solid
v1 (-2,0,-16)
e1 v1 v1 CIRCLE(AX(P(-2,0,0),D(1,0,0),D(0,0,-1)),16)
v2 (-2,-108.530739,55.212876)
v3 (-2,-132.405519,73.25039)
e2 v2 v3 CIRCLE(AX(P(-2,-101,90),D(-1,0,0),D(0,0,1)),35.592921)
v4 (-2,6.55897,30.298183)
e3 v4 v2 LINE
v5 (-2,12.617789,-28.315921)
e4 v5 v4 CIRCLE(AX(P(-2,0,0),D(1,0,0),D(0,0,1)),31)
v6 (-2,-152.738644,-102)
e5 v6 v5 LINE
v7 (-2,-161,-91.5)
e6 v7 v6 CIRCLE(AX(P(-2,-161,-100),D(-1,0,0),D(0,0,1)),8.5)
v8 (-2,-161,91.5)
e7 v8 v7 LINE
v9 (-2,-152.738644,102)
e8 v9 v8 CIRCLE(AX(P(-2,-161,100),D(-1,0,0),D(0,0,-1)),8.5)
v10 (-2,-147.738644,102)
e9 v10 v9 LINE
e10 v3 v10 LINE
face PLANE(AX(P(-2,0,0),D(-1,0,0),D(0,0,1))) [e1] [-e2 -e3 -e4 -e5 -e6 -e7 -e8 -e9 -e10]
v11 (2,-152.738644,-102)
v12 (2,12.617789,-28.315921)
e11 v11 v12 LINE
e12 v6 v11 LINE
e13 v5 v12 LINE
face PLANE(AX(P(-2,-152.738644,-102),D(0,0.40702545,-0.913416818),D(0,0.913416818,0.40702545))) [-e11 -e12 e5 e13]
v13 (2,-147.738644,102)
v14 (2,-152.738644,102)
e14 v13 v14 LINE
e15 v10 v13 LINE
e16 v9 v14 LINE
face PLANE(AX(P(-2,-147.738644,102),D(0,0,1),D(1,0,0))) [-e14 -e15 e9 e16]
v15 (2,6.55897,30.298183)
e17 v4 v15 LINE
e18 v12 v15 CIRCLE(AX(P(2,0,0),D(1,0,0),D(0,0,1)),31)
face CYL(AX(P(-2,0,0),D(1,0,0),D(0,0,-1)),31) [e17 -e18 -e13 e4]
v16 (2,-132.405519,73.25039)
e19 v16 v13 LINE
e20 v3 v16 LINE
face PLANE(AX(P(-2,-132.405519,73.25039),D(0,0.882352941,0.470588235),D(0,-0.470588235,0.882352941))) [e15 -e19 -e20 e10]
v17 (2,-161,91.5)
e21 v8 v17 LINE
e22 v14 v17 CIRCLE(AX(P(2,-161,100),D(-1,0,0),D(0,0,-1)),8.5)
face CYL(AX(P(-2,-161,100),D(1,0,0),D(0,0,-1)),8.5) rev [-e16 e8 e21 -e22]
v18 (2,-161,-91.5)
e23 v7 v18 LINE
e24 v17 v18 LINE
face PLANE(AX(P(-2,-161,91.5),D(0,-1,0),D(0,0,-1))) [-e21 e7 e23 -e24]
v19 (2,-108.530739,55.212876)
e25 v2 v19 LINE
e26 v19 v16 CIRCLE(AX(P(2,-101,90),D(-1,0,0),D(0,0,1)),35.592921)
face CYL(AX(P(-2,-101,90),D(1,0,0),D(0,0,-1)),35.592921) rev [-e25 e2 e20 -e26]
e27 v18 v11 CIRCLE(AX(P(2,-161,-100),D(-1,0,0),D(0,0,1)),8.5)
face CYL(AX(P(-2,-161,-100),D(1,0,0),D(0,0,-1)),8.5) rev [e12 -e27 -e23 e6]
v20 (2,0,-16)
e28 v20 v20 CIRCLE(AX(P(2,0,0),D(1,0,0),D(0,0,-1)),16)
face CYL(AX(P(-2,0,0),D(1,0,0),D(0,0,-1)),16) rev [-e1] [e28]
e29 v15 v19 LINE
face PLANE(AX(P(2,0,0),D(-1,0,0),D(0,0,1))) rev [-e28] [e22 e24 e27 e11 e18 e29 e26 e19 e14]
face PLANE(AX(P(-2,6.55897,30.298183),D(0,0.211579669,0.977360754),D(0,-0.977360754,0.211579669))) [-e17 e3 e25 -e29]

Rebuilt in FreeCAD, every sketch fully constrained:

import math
import FreeCAD as App
import Part
import Sketcher
from FreeCAD import Vector

doc = App.newDocument("Part")
body = doc.addObject("PartDesign::Body", "Body")

sketch1 = body.newObject("Sketcher::SketchObject", "Sketch")
sketch1.AttachmentSupport = (doc.getObject("YZ_Plane"), [""])
sketch1.MapMode = "FlatFace"
sketch1.addGeometry(Part.LineSegment(Vector(-161, 91.5, 0), Vector(-161, -91.5, 0)), False)
sketch1.addGeometry(Part.ArcOfCircle(Part.Circle(Vector(-161, -100, 0), Vector(0, 0, 1), 8.5), math.radians(-13.608961), math.radians(90)), False)
sketch1.addGeometry(Part.LineSegment(Vector(-152.738644, -102, 0), Vector(12.617789, -28.315921, 0)), False)
sketch1.addGeometry(Part.ArcOfCircle(Part.Circle(Vector(0, 0, 0), Vector(0, 0, 1), 31), math.radians(-65.981885), math.radians(77.785059)), False)
sketch1.addGeometry(Part.LineSegment(Vector(6.55897, 30.298183, 0), Vector(-108.530739, 55.212876, 0)), False)
sketch1.addGeometry(Part.ArcOfCircle(Part.Circle(Vector(-101, 90, 0), Vector(0, 0, 1), 35.592921), math.radians(-151.927513), math.radians(-102.214941)), False)
sketch1.addGeometry(Part.LineSegment(Vector(-132.405519, 73.25039, 0), Vector(-147.738644, 102, 0)), False)
sketch1.addGeometry(Part.LineSegment(Vector(-147.738644, 102, 0), Vector(-152.738644, 102, 0)), False)
sketch1.addGeometry(Part.ArcOfCircle(Part.Circle(Vector(-161, 100, 0), Vector(0, 0, 1), 8.5), math.radians(-90), math.radians(13.608961)), False)
sketch1.addGeometry(Part.Circle(Vector(0, 0, 0), Vector(0, 0, 1), 16), False)
sketch1.addConstraint(Sketcher.Constraint("Coincident", 0, 2, 1, 2))
sketch1.addConstraint(Sketcher.Constraint("Coincident", 1, 1, 2, 1))
sketch1.addConstraint(Sketcher.Constraint("Tangent", 2, 2, 3, 1))
sketch1.addConstraint(Sketcher.Constraint("Tangent", 3, 2, 4, 1))
sketch1.addConstraint(Sketcher.Constraint("Tangent", 4, 2, 5, 2))
sketch1.addConstraint(Sketcher.Constraint("Tangent", 5, 1, 6, 1))
sketch1.addConstraint(Sketcher.Constraint("Coincident", 6, 2, 7, 1))
sketch1.addConstraint(Sketcher.Constraint("Coincident", 7, 2, 8, 2))
sketch1.addConstraint(Sketcher.Constraint("Coincident", 8, 1, 0, 1))
sketch1.addConstraint(Sketcher.Constraint("Vertical", 0))
sketch1.addConstraint(Sketcher.Constraint("Horizontal", 7))
sketch1.addConstraint(Sketcher.Constraint("Coincident", 3, 3, -1, 1))
sketch1.addConstraint(Sketcher.Constraint("Coincident", 9, 3, -1, 1))
sketch1.addConstraint(Sketcher.Constraint("Equal", 1, 8))
sketch1.addConstraint(Sketcher.Constraint("Symmetric", 1, 3, 8, 3, -1))
sketch1.addConstraint(Sketcher.Constraint("Vertical", 8, 3, 0, 2))
sketch1.addConstraint(Sketcher.Constraint("Vertical", 1, 1, 7, 2))
sketch1.addConstraint(Sketcher.Constraint("Diameter", 9, 32.0))
sketch1.addConstraint(Sketcher.Constraint("Radius", 3, 31.0))
sketch1.addConstraint(Sketcher.Constraint("Radius", 1, 8.5))
sketch1.addConstraint(Sketcher.Constraint("DistanceX", 7, 2, 7, 1, 5.0))
sketch1.addConstraint(Sketcher.Constraint("DistanceY", 0, 2, 0, 1, 183.0))
sketch1.addConstraint(Sketcher.Constraint("DistanceX", 1, 3, -1, 1, 161.0))
sketch1.addConstraint(Sketcher.Constraint("DistanceX", 5, 3, -1, 1, 101.0))
sketch1.addConstraint(Sketcher.Constraint("DistanceY", -1, 1, 5, 3, 90.0))
sketch1.addConstraint(Sketcher.Constraint("DistanceY", 1, 1, -1, 1, 102.0))
sketch1.addConstraint(Sketcher.Constraint("Radius", 5, 35.592921))
pad1 = body.newObject("PartDesign::Pad", "Pad")
pad1.Profile = sketch1
pad1.Type = "TwoLengths"
pad1.Length = 2
pad1.Length2 = 2

doc.recompute()
